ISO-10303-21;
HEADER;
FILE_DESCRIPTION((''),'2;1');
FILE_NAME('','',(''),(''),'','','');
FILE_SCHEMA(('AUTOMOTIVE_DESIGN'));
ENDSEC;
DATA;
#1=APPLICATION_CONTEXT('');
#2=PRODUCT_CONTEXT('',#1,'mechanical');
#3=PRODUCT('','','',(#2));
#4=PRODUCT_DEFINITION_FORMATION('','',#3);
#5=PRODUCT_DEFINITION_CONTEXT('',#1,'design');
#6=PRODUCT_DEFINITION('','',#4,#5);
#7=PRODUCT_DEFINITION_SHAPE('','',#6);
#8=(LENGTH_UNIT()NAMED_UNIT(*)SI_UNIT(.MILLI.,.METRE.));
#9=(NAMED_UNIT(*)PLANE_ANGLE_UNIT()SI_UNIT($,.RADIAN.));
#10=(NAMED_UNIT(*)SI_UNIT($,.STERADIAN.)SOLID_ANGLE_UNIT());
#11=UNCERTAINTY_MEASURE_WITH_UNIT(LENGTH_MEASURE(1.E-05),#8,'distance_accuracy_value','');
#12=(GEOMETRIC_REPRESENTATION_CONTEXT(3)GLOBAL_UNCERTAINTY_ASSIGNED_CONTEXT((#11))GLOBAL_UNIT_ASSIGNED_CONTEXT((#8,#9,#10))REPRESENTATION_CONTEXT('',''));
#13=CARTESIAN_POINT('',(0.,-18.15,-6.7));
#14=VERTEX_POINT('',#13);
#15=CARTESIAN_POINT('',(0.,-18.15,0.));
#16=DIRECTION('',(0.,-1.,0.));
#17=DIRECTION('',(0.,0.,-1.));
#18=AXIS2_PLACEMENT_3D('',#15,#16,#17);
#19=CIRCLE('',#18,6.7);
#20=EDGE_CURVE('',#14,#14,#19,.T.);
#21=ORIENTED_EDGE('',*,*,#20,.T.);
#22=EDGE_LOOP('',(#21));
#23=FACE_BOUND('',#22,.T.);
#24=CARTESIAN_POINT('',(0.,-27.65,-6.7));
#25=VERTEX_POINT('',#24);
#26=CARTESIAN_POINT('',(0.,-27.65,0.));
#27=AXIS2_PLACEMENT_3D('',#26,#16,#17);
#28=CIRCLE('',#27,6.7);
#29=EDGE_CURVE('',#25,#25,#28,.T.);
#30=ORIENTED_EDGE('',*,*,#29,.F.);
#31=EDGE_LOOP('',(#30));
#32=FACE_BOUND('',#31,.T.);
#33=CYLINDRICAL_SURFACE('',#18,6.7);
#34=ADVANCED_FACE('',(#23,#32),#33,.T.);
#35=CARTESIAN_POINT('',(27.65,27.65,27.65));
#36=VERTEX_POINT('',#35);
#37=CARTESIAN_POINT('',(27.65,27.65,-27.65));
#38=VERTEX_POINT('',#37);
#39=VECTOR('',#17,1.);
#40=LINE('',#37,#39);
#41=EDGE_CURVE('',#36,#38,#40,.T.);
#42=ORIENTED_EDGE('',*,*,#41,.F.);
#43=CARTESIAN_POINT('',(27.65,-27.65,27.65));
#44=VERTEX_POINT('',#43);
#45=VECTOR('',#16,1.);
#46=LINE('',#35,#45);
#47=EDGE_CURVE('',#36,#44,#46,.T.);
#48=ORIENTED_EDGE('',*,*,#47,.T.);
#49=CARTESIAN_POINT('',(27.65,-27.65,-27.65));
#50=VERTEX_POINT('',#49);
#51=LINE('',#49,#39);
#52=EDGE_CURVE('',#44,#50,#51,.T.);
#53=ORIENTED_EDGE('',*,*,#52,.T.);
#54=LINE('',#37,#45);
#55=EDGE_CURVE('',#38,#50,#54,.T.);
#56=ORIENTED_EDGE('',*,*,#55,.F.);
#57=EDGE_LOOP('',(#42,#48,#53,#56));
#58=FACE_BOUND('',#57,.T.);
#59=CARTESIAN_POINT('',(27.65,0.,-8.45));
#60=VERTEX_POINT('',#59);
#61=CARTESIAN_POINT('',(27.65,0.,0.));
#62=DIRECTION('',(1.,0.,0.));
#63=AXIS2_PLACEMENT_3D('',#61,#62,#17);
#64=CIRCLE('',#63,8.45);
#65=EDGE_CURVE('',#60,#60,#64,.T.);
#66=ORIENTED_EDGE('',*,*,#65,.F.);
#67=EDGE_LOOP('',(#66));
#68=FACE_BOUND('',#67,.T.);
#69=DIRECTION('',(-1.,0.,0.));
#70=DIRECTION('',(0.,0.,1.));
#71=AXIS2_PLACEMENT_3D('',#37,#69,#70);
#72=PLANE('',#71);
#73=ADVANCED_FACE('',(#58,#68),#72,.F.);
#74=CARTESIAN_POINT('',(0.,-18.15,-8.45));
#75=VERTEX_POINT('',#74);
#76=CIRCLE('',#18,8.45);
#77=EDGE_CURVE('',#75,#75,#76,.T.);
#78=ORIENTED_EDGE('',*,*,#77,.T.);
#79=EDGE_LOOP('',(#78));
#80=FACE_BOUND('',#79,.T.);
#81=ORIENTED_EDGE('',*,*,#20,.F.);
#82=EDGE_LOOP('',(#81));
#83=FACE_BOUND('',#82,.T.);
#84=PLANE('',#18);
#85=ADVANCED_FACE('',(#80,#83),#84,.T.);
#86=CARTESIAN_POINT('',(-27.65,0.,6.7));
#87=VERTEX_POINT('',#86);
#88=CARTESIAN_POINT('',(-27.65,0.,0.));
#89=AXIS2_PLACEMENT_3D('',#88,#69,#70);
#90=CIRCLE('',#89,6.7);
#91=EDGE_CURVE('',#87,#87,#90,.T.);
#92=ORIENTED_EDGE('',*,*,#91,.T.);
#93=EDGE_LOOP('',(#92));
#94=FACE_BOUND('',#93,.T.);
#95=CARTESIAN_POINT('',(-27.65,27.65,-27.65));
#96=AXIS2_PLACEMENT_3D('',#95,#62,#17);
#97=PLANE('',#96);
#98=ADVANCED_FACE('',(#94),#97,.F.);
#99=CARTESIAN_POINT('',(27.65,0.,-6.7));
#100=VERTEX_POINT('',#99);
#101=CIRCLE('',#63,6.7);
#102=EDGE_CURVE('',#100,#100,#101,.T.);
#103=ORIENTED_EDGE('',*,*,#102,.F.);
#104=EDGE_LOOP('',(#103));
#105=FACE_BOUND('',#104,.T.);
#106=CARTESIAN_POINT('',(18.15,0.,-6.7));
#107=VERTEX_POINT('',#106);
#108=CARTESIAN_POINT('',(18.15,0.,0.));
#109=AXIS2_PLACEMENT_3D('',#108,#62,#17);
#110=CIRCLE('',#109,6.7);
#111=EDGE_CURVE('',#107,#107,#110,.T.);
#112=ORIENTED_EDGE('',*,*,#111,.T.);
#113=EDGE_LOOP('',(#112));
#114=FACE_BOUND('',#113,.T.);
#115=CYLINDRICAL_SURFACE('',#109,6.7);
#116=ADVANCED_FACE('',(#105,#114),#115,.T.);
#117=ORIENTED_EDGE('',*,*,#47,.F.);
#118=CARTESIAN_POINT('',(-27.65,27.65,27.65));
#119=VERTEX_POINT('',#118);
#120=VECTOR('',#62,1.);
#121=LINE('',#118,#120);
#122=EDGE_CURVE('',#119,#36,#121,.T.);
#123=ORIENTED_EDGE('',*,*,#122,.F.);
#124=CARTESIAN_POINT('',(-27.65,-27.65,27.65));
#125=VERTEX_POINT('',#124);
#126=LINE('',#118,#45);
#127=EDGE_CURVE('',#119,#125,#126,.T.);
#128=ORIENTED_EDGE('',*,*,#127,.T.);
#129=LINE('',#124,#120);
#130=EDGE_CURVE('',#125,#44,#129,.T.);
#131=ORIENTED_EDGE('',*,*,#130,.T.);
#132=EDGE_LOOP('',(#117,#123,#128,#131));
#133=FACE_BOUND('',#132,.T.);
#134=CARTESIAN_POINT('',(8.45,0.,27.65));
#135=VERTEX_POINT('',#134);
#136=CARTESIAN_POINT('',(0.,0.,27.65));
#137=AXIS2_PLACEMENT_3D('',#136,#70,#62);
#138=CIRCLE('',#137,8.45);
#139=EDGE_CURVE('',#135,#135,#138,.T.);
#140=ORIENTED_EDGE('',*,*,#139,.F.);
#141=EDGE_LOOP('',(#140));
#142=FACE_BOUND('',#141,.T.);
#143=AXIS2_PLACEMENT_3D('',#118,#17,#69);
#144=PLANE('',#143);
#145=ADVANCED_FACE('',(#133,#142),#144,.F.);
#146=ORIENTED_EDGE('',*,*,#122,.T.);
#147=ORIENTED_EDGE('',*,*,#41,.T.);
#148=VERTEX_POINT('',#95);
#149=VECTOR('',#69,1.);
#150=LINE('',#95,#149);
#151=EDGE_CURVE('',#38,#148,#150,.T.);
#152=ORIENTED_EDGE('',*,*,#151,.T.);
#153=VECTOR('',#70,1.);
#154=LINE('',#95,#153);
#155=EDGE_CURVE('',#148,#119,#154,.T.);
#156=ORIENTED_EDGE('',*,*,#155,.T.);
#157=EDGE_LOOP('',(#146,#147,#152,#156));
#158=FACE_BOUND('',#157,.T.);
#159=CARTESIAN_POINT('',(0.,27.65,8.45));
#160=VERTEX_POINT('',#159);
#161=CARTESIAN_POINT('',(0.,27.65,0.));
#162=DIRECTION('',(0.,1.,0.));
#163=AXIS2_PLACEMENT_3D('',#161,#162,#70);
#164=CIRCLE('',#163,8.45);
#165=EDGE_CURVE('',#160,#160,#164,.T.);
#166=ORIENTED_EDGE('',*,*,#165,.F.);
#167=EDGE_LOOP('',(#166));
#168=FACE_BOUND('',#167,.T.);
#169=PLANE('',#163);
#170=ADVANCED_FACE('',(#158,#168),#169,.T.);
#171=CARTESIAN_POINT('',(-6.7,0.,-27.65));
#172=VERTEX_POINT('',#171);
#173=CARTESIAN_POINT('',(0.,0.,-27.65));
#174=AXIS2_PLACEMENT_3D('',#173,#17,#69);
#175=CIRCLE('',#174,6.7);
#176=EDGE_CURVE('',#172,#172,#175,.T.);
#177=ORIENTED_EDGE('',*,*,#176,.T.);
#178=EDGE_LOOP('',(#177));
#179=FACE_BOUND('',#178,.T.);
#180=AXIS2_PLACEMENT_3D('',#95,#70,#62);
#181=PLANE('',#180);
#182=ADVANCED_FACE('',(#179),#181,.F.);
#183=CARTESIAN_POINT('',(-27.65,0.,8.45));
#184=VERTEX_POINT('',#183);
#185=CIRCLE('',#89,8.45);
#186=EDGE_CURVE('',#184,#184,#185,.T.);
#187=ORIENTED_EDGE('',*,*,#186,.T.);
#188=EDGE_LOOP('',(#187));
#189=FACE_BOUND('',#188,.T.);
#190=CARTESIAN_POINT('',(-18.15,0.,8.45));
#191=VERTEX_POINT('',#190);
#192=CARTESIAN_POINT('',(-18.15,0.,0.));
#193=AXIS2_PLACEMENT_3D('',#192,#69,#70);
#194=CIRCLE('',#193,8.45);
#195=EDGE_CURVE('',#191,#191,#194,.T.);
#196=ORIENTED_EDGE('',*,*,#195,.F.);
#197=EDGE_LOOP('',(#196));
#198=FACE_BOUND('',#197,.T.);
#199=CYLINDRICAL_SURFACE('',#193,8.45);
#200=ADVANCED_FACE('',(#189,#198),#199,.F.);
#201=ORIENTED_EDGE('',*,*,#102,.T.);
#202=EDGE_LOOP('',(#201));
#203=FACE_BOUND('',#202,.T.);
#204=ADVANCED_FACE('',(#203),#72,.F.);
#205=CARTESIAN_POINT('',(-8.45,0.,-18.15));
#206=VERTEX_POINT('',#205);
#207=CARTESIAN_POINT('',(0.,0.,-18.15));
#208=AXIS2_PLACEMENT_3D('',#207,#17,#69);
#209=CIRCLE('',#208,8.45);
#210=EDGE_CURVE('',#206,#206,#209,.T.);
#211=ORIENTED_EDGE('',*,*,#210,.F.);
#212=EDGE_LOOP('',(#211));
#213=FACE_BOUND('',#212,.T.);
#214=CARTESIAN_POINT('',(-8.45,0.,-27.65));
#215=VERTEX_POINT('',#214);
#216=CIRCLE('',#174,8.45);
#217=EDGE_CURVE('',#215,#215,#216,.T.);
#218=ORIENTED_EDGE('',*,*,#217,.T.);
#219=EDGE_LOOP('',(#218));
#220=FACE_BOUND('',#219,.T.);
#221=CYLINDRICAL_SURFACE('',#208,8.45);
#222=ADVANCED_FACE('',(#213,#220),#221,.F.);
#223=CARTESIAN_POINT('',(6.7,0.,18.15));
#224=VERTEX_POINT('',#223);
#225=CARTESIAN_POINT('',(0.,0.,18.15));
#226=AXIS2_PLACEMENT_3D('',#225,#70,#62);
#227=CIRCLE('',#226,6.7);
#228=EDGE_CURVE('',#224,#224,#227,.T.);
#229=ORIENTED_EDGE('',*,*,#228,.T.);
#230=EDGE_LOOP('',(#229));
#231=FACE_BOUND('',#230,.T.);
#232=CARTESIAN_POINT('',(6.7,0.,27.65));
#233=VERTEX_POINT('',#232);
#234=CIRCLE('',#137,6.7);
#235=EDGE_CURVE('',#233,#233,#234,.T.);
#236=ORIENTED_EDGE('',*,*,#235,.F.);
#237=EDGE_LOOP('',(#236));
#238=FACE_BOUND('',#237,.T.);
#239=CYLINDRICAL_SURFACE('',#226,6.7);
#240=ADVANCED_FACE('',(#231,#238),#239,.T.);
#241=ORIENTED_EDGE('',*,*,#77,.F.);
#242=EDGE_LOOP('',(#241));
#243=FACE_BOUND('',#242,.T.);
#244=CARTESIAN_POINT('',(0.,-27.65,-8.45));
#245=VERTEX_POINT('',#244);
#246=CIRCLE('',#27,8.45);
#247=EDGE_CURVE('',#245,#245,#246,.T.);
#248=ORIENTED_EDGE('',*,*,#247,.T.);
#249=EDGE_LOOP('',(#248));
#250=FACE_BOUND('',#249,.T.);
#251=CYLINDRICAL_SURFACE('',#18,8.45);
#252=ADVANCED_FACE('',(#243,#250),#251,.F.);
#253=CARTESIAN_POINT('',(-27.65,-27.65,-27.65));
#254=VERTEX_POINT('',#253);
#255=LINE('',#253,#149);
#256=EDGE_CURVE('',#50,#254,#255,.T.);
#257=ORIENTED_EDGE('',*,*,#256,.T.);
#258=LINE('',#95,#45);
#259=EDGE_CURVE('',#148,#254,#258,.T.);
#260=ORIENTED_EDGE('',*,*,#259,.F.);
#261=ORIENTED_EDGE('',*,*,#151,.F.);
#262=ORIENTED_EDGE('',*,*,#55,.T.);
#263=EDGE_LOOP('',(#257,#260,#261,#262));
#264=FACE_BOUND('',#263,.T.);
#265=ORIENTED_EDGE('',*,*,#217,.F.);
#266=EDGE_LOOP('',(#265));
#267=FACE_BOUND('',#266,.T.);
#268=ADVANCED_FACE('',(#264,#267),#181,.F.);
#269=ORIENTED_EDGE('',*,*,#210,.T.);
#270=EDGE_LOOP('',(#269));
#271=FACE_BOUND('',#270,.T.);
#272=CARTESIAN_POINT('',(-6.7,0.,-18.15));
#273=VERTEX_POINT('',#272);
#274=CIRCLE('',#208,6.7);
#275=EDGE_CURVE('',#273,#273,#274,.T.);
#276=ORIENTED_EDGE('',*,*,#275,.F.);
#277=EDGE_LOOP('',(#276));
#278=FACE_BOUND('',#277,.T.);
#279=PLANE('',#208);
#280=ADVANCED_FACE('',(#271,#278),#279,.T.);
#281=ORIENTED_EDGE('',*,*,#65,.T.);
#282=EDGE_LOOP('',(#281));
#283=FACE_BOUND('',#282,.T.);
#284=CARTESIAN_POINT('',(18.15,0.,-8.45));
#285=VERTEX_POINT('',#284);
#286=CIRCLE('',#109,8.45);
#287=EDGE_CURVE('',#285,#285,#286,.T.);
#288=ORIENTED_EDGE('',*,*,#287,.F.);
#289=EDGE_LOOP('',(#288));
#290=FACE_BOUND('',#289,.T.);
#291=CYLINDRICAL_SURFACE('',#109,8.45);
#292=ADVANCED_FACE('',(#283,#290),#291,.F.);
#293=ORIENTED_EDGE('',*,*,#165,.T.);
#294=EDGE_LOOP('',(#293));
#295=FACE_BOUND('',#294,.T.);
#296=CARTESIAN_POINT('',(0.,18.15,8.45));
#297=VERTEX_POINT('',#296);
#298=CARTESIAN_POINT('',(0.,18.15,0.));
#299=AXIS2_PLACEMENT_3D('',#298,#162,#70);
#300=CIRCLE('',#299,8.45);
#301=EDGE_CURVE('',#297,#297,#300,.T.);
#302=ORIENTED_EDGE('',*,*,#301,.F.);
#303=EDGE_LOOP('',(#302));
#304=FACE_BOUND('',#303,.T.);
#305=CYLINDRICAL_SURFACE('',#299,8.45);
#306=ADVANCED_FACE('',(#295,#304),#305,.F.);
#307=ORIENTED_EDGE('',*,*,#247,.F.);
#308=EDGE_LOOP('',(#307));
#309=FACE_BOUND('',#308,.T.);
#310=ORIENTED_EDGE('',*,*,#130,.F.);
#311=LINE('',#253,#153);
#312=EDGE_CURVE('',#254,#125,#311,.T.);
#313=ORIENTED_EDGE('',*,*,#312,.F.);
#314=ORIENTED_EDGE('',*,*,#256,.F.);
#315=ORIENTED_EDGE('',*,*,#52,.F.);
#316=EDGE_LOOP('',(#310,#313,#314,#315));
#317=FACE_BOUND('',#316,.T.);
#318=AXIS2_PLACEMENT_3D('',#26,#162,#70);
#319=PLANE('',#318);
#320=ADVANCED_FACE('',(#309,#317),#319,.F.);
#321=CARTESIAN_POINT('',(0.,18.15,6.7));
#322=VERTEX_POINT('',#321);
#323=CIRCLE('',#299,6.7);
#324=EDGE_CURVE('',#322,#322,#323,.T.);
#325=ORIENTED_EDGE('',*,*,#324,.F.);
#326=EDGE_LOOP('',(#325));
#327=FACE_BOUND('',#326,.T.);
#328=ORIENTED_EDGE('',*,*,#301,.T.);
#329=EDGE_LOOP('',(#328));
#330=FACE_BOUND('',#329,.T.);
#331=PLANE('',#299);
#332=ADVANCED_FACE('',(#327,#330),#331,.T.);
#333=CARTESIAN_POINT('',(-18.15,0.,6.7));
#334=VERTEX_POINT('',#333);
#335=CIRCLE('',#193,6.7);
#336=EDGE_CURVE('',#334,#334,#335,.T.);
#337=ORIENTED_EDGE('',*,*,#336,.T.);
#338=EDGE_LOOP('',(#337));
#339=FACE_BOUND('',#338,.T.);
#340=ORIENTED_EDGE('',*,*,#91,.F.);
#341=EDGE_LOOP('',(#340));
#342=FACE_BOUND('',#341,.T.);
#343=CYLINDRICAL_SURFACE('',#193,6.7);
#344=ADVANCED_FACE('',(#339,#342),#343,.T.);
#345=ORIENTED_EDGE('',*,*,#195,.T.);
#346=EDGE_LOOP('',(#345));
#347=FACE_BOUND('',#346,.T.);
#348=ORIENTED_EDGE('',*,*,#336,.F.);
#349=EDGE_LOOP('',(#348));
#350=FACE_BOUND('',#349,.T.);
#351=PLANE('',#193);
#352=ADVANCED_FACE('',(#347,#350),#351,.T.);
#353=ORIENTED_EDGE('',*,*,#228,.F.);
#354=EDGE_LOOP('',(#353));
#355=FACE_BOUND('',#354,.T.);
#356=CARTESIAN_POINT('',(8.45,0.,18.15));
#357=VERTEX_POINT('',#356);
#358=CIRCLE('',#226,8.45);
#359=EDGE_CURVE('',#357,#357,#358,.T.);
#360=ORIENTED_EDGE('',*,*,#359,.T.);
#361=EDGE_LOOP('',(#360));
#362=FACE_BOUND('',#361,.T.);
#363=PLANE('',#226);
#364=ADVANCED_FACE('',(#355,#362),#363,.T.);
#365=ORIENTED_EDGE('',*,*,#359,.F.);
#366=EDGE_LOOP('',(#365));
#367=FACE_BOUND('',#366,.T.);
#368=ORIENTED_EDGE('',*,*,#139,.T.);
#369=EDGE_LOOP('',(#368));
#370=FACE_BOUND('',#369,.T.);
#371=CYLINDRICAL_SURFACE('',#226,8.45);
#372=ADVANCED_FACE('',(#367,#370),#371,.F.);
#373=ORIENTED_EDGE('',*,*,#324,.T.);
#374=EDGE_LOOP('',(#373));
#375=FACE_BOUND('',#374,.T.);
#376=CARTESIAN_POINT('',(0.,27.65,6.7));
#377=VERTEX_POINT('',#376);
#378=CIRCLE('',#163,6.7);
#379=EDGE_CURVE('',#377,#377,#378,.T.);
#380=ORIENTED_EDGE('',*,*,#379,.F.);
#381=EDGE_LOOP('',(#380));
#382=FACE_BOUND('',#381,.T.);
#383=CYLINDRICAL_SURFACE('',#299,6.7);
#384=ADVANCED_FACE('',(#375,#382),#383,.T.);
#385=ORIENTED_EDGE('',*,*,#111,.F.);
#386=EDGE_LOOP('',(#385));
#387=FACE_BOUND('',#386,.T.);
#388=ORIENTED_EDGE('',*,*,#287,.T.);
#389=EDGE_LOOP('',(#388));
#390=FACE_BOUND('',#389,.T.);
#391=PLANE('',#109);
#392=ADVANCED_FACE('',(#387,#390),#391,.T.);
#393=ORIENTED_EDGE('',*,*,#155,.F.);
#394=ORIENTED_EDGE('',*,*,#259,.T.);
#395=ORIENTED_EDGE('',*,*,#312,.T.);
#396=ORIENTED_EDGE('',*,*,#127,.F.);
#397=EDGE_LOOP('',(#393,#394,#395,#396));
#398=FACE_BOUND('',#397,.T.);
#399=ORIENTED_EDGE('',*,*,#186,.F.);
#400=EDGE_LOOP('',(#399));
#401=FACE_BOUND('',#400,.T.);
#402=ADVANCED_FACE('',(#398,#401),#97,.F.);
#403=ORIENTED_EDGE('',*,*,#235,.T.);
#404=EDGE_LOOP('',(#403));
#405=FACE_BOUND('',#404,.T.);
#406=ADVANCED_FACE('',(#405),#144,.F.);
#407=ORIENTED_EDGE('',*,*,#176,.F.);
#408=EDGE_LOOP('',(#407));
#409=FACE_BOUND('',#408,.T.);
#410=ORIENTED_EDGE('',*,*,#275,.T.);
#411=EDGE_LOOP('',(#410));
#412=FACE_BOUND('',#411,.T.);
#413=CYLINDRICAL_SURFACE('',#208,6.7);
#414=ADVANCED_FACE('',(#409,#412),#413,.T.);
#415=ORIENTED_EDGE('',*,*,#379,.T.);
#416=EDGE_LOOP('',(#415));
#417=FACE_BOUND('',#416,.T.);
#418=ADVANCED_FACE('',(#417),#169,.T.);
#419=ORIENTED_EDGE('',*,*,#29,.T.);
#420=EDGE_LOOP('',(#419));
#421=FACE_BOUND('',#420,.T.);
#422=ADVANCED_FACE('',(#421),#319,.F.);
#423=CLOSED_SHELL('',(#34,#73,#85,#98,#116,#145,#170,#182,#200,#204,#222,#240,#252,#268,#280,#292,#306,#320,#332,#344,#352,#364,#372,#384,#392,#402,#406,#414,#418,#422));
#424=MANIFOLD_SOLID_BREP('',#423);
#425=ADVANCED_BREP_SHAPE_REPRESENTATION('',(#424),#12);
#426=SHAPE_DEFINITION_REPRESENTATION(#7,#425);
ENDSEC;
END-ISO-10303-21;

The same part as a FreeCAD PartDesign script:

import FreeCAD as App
import Part
import Sketcher

V = App.Vector

doc = App.newDocument("Part")
params = doc.addObject("Spreadsheet::Sheet", "Params")
for row, (alias, value) in enumerate([
    ("sketch1_width", "55.3 mm"),
    ("pad1_length", "55.3 mm"),
    ("sketch2_diameter", "16.9 mm"),
    ("sketch2_diameter2", "13.4 mm"),
    ("pocket1_length", "9.5 mm"),
    ("sketch3_diameter", "16.9 mm"),
    ("sketch3_diameter2", "13.4 mm"),
    ("pocket2_length", "9.5 mm"),
    ("sketch4_diameter", "16.9 mm"),
    ("sketch4_diameter2", "13.4 mm"),
    ("pocket3_length", "9.5 mm"),
    ("sketch5_diameter", "16.9 mm"),
    ("sketch5_diameter2", "13.4 mm"),
    ("pocket4_length", "9.5 mm"),
    ("sketch6_diameter", "16.9 mm"),
    ("sketch6_diameter2", "13.4 mm"),
    ("pocket5_length", "9.5 mm"),
    ("sketch7_diameter", "16.9 mm"),
    ("sketch7_diameter2", "13.4 mm"),
    ("pocket6_length", "9.5 mm"),
], start=1):
    params.set(f"A{row}", alias)
    params.set(f"B{row}", "=" + value)
    params.setAlias(f"B{row}", alias)

body = doc.addObject("PartDesign::Body", "Body")

# Sketch on XZ plane
sketch1 = body.newObject("Sketcher::SketchObject", "Sketch")
sketch1.AttachmentSupport = (doc.getObject("XZ_Plane"), [""])
sketch1.MapMode = "FlatFace"
sketch1.addGeometry([
    Part.LineSegment(V(-27.65, -27.65, 0), V(-27.65, 27.65, 0)),
    Part.LineSegment(V(-27.65, 27.65, 0), V(27.65, 27.65, 0)),
    Part.LineSegment(V(27.65, 27.65, 0), V(27.65, -27.65, 0)),
    Part.LineSegment(V(27.65, -27.65, 0), V(-27.65, -27.65, 0)),
], False)
sketch1.addConstraint([
    Sketcher.Constraint("Coincident", 0, 2, 1, 1),
    Sketcher.Constraint("Coincident", 1, 2, 2, 1),
    Sketcher.Constraint("Coincident", 2, 2, 3, 1),
    Sketcher.Constraint("Coincident", 3, 2, 0, 1),
    Sketcher.Constraint("Vertical", 0),
    Sketcher.Constraint("Horizontal", 1),
    Sketcher.Constraint("Vertical", 2),
    Sketcher.Constraint("Horizontal", 3),
    Sketcher.Constraint("Symmetric", 0, 2, 2, 2, -1, 1),
    Sketcher.Constraint("Equal", 3, 0),
    Sketcher.Constraint("DistanceX", 1, 1, 1, 2, 55.3),
])
sketch1.setExpression("Constraints[10]", "Params.sketch1_width")
pad1 = body.newObject("PartDesign::Pad", "Pad")
pad1.Profile = sketch1
pad1.setExpression("Length", "Params.pad1_length")
pad1.Midplane = True

# Sketch on XZ plane
sketch2 = body.newObject("Sketcher::SketchObject", "Sketch001")
sketch2.AttachmentSupport = (doc.getObject("XZ_Plane"), [""])
sketch2.MapMode = "FlatFace"
sketch2.AttachmentOffset = App.Placement(V(0, 0, -27.65), App.Rotation())
sketch2.addGeometry([
    Part.Circle(V(0, 0, 0), V(0, 0, 1), 8.45),
    Part.Circle(V(0, 0, 0), V(0, 0, 1), 6.7),
], False)
sketch2.addConstraint([
    Sketcher.Constraint("Coincident", 0, 3, -1, 1),
    Sketcher.Constraint("Coincident", 1, 3, -1, 1),
    Sketcher.Constraint("Diameter", 0, 16.9),
    Sketcher.Constraint("Diameter", 1, 13.4),
])
sketch2.setExpression("Constraints[2]", "Params.sketch2_diameter")
sketch2.setExpression("Constraints[3]", "Params.sketch2_diameter2")
pocket1 = body.newObject("PartDesign::Pocket", "Pocket")
pocket1.Profile = sketch2
pocket1.setExpression("Length", "Params.pocket1_length")
pocket1.Reversed = True

# Sketch on XZ plane
sketch3 = body.newObject("Sketcher::SketchObject", "Sketch002")
sketch3.AttachmentSupport = (doc.getObject("XZ_Plane"), [""])
sketch3.MapMode = "FlatFace"
sketch3.AttachmentOffset = App.Placement(V(0, 0, 18.15), App.Rotation())
sketch3.addGeometry([
    Part.Circle(V(0, 0, 0), V(0, 0, 1), 8.45),
    Part.Circle(V(0, 0, 0), V(0, 0, 1), 6.7),
], False)
sketch3.addConstraint([
    Sketcher.Constraint("Coincident", 0, 3, -1, 1),
    Sketcher.Constraint("Coincident", 1, 3, -1, 1),
    Sketcher.Constraint("Diameter", 0, 16.9),
    Sketcher.Constraint("Diameter", 1, 13.4),
])
sketch3.setExpression("Constraints[2]", "Params.sketch3_diameter")
sketch3.setExpression("Constraints[3]", "Params.sketch3_diameter2")
pocket2 = body.newObject("PartDesign::Pocket", "Pocket001")
pocket2.Profile = sketch3
pocket2.setExpression("Length", "Params.pocket2_length")
pocket2.Reversed = True

# Sketch on YZ plane
sketch4 = body.newObject("Sketcher::SketchObject", "Sketch003")
sketch4.AttachmentSupport = (doc.getObject("YZ_Plane"), [""])
sketch4.MapMode = "FlatFace"
sketch4.AttachmentOffset = App.Placement(V(0, 0, 27.65), App.Rotation())
sketch4.addGeometry([
    Part.Circle(V(0, 0, 0), V(0, 0, 1), 8.45),
    Part.Circle(V(0, 0, 0), V(0, 0, 1), 6.7),
], False)
sketch4.addConstraint([
    Sketcher.Constraint("Coincident", 0, 3, -1, 1),
    Sketcher.Constraint("Coincident", 1, 3, -1, 1),
    Sketcher.Constraint("Diameter", 0, 16.9),
    Sketcher.Constraint("Diameter", 1, 13.4),
])
sketch4.setExpression("Constraints[2]", "Params.sketch4_diameter")
sketch4.setExpression("Constraints[3]", "Params.sketch4_diameter2")
pocket3 = body.newObject("PartDesign::Pocket", "Pocket002")
pocket3.Profile = sketch4
pocket3.setExpression("Length", "Params.pocket3_length")

# Sketch on YZ plane
sketch5 = body.newObject("Sketcher::SketchObject", "Sketch004")
sketch5.AttachmentSupport = (doc.getObject("YZ_Plane"), [""])
sketch5.MapMode = "FlatFace"
sketch5.AttachmentOffset = App.Placement(V(0, 0, -18.15), App.Rotation())
sketch5.addGeometry([
    Part.Circle(V(0, 0, 0), V(0, 0, 1), 8.45),
    Part.Circle(V(0, 0, 0), V(0, 0, 1), 6.7),
], False)
sketch5.addConstraint([
    Sketcher.Constraint("Coincident", 0, 3, -1, 1),
    Sketcher.Constraint("Coincident", 1, 3, -1, 1),
    Sketcher.Constraint("Diameter", 0, 16.9),
    Sketcher.Constraint("Diameter", 1, 13.4),
])
sketch5.setExpression("Constraints[2]", "Params.sketch5_diameter")
sketch5.setExpression("Constraints[3]", "Params.sketch5_diameter2")
pocket4 = body.newObject("PartDesign::Pocket", "Pocket003")
pocket4.Profile = sketch5
pocket4.setExpression("Length", "Params.pocket4_length")

# Sketch on XY plane
sketch6 = body.newObject("Sketcher::SketchObject", "Sketch005")
sketch6.AttachmentSupport = (doc.getObject("XY_Plane"), [""])
sketch6.MapMode = "FlatFace"
sketch6.AttachmentOffset = App.Placement(V(0, 0, 27.65), App.Rotation())
sketch6.addGeometry([
    Part.Circle(V(0, 0, 0), V(0, 0, 1), 8.45),
    Part.Circle(V(0, 0, 0), V(0, 0, 1), 6.7),
], False)
sketch6.addConstraint([
    Sketcher.Constraint("Coincident", 0, 3, -1, 1),
    Sketcher.Constraint("Coincident", 1, 3, -1, 1),
    Sketcher.Constraint("Diameter", 0, 16.9),
    Sketcher.Constraint("Diameter", 1, 13.4),
])
sketch6.setExpression("Constraints[2]", "Params.sketch6_diameter")
sketch6.setExpression("Constraints[3]", "Params.sketch6_diameter2")
pocket5 = body.newObject("PartDesign::Pocket", "Pocket004")
pocket5.Profile = sketch6
pocket5.setExpression("Length", "Params.pocket5_length")

# Sketch on XY plane
sketch7 = body.newObject("Sketcher::SketchObject", "Sketch006")
sketch7.AttachmentSupport = (doc.getObject("XY_Plane"), [""])
sketch7.MapMode = "FlatFace"
sketch7.AttachmentOffset = App.Placement(V(0, 0, -18.15), App.Rotation())
sketch7.addGeometry([
    Part.Circle(V(0, 0, 0), V(0, 0, 1), 8.45),
    Part.Circle(V(0, 0, 0), V(0, 0, 1), 6.7),
], False)
sketch7.addConstraint([
    Sketcher.Constraint("Coincident", 0, 3, -1, 1),
    Sketcher.Constraint("Coincident", 1, 3, -1, 1),
    Sketcher.Constraint("Diameter", 0, 16.9),
    Sketcher.Constraint("Diameter", 1, 13.4),
])
sketch7.setExpression("Constraints[2]", "Params.sketch7_diameter")
sketch7.setExpression("Constraints[3]", "Params.sketch7_diameter2")
pocket6 = body.newObject("PartDesign::Pocket", "Pocket005")
pocket6.Profile = sketch7
pocket6.setExpression("Length", "Params.pocket6_length")

doc.recompute()
